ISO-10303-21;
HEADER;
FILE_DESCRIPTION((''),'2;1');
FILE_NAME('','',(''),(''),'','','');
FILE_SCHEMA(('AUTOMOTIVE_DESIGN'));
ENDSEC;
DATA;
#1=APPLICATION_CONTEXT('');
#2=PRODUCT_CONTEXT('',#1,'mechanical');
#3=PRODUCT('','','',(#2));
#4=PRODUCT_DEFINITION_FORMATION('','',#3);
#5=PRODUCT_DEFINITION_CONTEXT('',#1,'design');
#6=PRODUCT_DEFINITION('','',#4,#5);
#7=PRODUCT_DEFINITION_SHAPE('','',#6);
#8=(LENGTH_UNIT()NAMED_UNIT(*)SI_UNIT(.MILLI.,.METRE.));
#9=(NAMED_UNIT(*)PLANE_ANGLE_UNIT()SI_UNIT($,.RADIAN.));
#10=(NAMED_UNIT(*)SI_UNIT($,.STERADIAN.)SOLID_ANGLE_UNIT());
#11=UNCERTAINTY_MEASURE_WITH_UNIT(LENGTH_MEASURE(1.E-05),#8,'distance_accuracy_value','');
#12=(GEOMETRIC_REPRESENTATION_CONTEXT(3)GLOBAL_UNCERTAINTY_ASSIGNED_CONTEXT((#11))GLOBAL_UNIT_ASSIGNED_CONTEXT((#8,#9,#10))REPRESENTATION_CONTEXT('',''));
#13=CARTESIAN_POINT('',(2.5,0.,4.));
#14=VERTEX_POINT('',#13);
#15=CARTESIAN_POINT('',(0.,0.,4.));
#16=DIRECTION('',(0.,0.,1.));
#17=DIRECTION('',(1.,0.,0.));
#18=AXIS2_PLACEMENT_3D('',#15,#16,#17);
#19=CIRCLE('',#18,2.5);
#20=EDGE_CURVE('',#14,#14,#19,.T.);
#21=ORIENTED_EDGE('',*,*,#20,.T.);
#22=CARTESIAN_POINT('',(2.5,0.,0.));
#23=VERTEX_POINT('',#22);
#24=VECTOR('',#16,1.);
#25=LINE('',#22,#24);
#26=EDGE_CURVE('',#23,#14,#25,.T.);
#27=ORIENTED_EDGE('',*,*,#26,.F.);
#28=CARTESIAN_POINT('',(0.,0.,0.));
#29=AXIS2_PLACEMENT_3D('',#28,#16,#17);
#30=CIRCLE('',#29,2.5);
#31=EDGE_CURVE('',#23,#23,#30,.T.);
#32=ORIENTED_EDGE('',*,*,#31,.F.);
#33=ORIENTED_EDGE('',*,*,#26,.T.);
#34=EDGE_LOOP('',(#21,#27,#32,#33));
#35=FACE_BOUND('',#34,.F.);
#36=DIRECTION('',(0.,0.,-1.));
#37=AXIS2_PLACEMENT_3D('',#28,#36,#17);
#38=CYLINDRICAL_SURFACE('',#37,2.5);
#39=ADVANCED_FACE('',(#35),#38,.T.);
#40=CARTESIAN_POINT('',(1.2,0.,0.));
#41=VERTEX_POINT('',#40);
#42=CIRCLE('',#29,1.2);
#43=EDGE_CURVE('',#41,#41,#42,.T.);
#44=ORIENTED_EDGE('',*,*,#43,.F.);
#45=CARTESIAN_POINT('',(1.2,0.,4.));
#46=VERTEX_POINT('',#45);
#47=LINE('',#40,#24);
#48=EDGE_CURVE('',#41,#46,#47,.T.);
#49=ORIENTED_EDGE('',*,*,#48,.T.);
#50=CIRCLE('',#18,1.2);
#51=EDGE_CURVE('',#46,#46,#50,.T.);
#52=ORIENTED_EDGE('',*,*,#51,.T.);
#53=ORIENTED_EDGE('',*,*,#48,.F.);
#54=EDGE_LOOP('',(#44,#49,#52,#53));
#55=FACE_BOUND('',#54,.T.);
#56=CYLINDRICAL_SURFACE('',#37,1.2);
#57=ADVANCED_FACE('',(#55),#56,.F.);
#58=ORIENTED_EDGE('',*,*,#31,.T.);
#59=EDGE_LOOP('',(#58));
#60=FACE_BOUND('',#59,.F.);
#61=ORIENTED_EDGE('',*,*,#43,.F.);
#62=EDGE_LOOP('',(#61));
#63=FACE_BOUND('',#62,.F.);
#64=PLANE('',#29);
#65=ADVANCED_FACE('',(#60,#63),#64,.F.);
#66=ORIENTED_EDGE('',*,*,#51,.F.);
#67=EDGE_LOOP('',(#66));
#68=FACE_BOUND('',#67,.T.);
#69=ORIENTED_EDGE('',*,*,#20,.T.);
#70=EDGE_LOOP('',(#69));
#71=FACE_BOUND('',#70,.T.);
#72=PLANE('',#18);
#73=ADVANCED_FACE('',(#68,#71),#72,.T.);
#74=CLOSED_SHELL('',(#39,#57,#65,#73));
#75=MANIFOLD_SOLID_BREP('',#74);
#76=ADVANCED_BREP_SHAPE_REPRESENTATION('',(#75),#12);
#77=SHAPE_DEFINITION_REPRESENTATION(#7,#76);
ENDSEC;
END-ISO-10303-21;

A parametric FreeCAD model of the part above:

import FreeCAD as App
import Part
import Sketcher

doc = App.newDocument("Part")
params = doc.addObject("Spreadsheet::Sheet", "Params")
for row, (alias, value) in enumerate([
    ("sketch1_diameter", "5 mm"),
    ("sketch1_diameter2", "2.4 mm"),
    ("pad1_length", "4 mm"),
], start=1):
    params.set(f"A{row}", alias)
    params.set(f"B{row}", "=" + value)
    params.setAlias(f"B{row}", alias)

body = doc.addObject("PartDesign::Body", "Body")

# Sketch on XY plane
sketch1 = body.newObject("Sketcher::SketchObject", "Sketch")
sketch1.AttachmentSupport = (doc.getObject("XY_Plane"), [""])
sketch1.MapMode = "FlatFace"
sketch1.addGeometry(Part.Circle(App.Vector(0, 0, 0), App.Vector(0, 0, 1), 2.5), False)
sketch1.addGeometry(Part.Circle(App.Vector(0, 0, 0), App.Vector(0, 0, 1), 1.2), False)
sketch1.addConstraint(Sketcher.Constraint("Coincident", 0, 3, -1, 1))
sketch1.addConstraint(Sketcher.Constraint("Coincident", 1, 3, -1, 1))
sketch1.addConstraint(Sketcher.Constraint("Diameter", 0, 5.0))
sketch1.addConstraint(Sketcher.Constraint("Diameter", 1, 2.4))
sketch1.setExpression("Constraints[2]", "Params.sketch1_diameter")
sketch1.setExpression("Constraints[3]", "Params.sketch1_diameter2")
pad1 = body.newObject("PartDesign::Pad", "Pad")
pad1.Profile = sketch1
pad1.setExpression("Length", "Params.pad1_length")

doc.recompute()
